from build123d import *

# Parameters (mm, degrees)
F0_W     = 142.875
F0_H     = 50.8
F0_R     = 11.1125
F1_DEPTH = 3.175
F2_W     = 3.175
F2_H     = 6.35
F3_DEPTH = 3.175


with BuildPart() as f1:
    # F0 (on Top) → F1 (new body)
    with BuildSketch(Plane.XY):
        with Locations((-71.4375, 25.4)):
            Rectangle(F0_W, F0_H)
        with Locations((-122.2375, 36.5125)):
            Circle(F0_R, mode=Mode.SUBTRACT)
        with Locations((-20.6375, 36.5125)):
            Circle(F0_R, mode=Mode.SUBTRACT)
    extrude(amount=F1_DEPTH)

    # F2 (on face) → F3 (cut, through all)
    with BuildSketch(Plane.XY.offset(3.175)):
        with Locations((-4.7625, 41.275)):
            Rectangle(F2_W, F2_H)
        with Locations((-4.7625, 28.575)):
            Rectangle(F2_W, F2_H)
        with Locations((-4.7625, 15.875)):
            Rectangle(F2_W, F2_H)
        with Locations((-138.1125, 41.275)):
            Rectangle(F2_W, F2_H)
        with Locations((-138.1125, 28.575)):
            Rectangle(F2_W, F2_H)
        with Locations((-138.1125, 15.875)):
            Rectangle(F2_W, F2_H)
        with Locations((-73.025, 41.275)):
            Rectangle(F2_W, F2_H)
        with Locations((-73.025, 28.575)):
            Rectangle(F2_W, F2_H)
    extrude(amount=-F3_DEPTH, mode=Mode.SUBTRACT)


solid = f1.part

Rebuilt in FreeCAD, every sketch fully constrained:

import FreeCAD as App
import Part
import Sketcher
Q = App.Units.Quantity


def add_polygon(sketch, points):
    """Adds a closed chain of lines whose ends are joined by coincident constraints."""
    first, n = sketch.GeometryCount, len(points)
    for a, b in zip(points, points[1:] + points[:1]):
        sketch.addGeometry(Part.LineSegment(App.Vector(*a, 0), App.Vector(*b, 0)), False)
    for i in range(n):
        sketch.addConstraint(Sketcher.Constraint("Coincident", first + i, 2, first + (i + 1) % n, 1))

doc = App.newDocument("Part")
body = doc.addObject("PartDesign::Body", "Body")

sketch1 = body.newObject("Sketcher::SketchObject", "Sketch")
sketch1.AttachmentSupport = (doc.getObject("XY_Plane"), [""])
sketch1.MapMode = "FlatFace"
add_polygon(sketch1, [(-142.875, 50.8), (-142.875, 0), (0, 0), (0, 50.8)])
sketch1.addGeometry(Part.Circle(App.Vector(-122.2375, 36.5125, 0), App.Vector(0, 0, 1), 11.1125), False)
sketch1.addGeometry(Part.Circle(App.Vector(-20.6375, 36.5125, 0), App.Vector(0, 0, 1), 11.1125), False)
sketch1.addConstraint(Sketcher.Constraint("Vertical", 0))
sketch1.addConstraint(Sketcher.Constraint("Horizontal", 1))
sketch1.addConstraint(Sketcher.Constraint("Vertical", 2))
sketch1.addConstraint(Sketcher.Constraint("Horizontal", 3))
sketch1.addConstraint(Sketcher.Constraint("Coincident", 1, 2, -1, 1))
sketch1.addConstraint(Sketcher.Constraint("Equal", 4, 5))
sketch1.addConstraint(Sketcher.Constraint("Horizontal", 4, 3, 5, 3))
sketch1.addConstraint(Sketcher.Constraint("DistanceY", 0, 2, 0, 1, Q("2 in")))
sketch1.addConstraint(Sketcher.Constraint("Diameter", 4, Q("0.875 in")))
sketch1.addConstraint(Sketcher.Constraint("DistanceX", 4, 3, 5, 3, Q("4 in")))
sketch1.addConstraint(Sketcher.Constraint("DistanceX", 1, 1, 1, 2, Q("5.625 in")))
sketch1.addConstraint(Sketcher.Constraint("DistanceX", 4, 3, -1, 1, Q("4.8125 in")))
sketch1.addConstraint(Sketcher.Constraint("DistanceY", -1, 1, 4, 3, Q("1.4375 in")))
pad1 = body.newObject("PartDesign::Pad", "Pad")
pad1.Profile = sketch1
pad1.Length = Q("0.125 in")

sketch2 = body.newObject("Sketcher::SketchObject", "Sketch001")
sketch2.AttachmentSupport = (doc.getObject("XY_Plane"), [""])
sketch2.MapMode = "FlatFace"
sketch2.AttachmentOffset = App.Placement(App.Vector(0, 0, 0.125 * 25.4), App.Rotation())
add_polygon(sketch2, [(-6.35, 44.45), (-6.35, 38.1), (-3.175, 38.1), (-3.175, 44.45)])
add_polygon(sketch2, [(-6.35, 31.75), (-6.35, 25.4), (-3.175, 25.4), (-3.175, 31.75)])
add_polygon(sketch2, [(-6.35, 19.05), (-6.35, 12.7), (-3.175, 12.7), (-3.175, 19.05)])
add_polygon(sketch2, [(-139.7, 44.45), (-139.7, 38.1), (-136.525, 38.1), (-136.525, 44.45)])
add_polygon(sketch2, [(-139.7, 31.75), (-139.7, 25.4), (-136.525, 25.4), (-136.525, 31.75)])
add_polygon(sketch2, [(-139.7, 19.05), (-139.7, 12.7), (-136.525, 12.7), (-136.525, 19.05)])
add_polygon(sketch2, [(-74.6125, 44.45), (-74.6125, 38.1), (-71.4375, 38.1), (-71.4375, 44.45)])
add_polygon(sketch2, [(-74.6125, 31.75), (-74.6125, 25.4), (-71.4375, 25.4), (-71.4375, 31.75)])
sketch2.addConstraint(Sketcher.Constraint("Vertical", 0))
sketch2.addConstraint(Sketcher.Constraint("Horizontal", 1))
sketch2.addConstraint(Sketcher.Constraint("Vertical", 2))
sketch2.addConstraint(Sketcher.Constraint("Horizontal", 3))
sketch2.addConstraint(Sketcher.Constraint("Vertical", 4))
sketch2.addConstraint(Sketcher.Constraint("Horizontal", 5))
sketch2.addConstraint(Sketcher.Constraint("Vertical", 6))
sketch2.addConstraint(Sketcher.Constraint("Horizontal", 7))
sketch2.addConstraint(Sketcher.Constraint("Vertical", 8))
sketch2.addConstraint(Sketcher.Constraint("Horizontal", 9))
sketch2.addConstraint(Sketcher.Constraint("Vertical", 10))
sketch2.addConstraint(Sketcher.Constraint("Horizontal", 11))
sketch2.addConstraint(Sketcher.Constraint("Vertical", 12))
sketch2.addConstraint(Sketcher.Constraint("Horizontal", 13))
sketch2.addConstraint(Sketcher.Constraint("Vertical", 14))
sketch2.addConstraint(Sketcher.Constraint("Horizontal", 15))
sketch2.addConstraint(Sketcher.Constraint("Vertical", 16))
sketch2.addConstraint(Sketcher.Constraint("Horizontal", 17))
sketch2.addConstraint(Sketcher.Constraint("Vertical", 18))
sketch2.addConstraint(Sketcher.Constraint("Horizontal", 19))
sketch2.addConstraint(Sketcher.Constraint("Vertical", 20))
sketch2.addConstraint(Sketcher.Constraint("Horizontal", 21))
sketch2.addConstraint(Sketcher.Constraint("Vertical", 22))
sketch2.addConstraint(Sketcher.Constraint("Horizontal", 23))
sketch2.addConstraint(Sketcher.Constraint("Vertical", 24))
sketch2.addConstraint(Sketcher.Constraint("Horizontal", 25))
sketch2.addConstraint(Sketcher.Constraint("Vertical", 26))
sketch2.addConstraint(Sketcher.Constraint("Horizontal", 27))
sketch2.addConstraint(Sketcher.Constraint("Vertical", 28))
sketch2.addConstraint(Sketcher.Constraint("Horizontal", 29))
sketch2.addConstraint(Sketcher.Constraint("Vertical", 30))
sketch2.addConstraint(Sketcher.Constraint("Horizontal", 31))
sketch2.addConstraint(Sketcher.Constraint("Horizontal", 1, 2, 12, 2))
sketch2.addConstraint(Sketcher.Constraint("Horizontal", 3, 2, 14, 2))
sketch2.addConstraint(Sketcher.Constraint("Horizontal", 5, 2, 16, 2))
sketch2.addConstraint(Sketcher.Constraint("Horizontal", 7, 2, 18, 2))
sketch2.addConstraint(Sketcher.Constraint("Horizontal", 9, 2, 20, 2))
sketch2.addConstraint(Sketcher.Constraint("Horizontal", 11, 2, 22, 2))
sketch2.addConstraint(Sketcher.Constraint("Horizontal", 13, 2, 24, 2))
sketch2.addConstraint(Sketcher.Constraint("Horizontal", 15, 2, 26, 2))
sketch2.addConstraint(Sketcher.Constraint("Horizontal", 17, 2, 28, 2))
sketch2.addConstraint(Sketcher.Constraint("Horizontal", 19, 2, 30, 2))
sketch2.addConstraint(Sketcher.Constraint("Vertical", 3, 2, 4, 2))
sketch2.addConstraint(Sketcher.Constraint("Vertical", 2, 2, 5, 2))
sketch2.addConstraint(Sketcher.Constraint("Vertical", 7, 2, 8, 2))
sketch2.addConstraint(Sketcher.Constraint("Vertical", 6, 2, 9, 2))
sketch2.addConstraint(Sketcher.Constraint("Vertical", 15, 2, 16, 2))
sketch2.addConstraint(Sketcher.Constraint("Vertical", 14, 2, 17, 2))
sketch2.addConstraint(Sketcher.Constraint("Vertical", 19, 2, 20, 2))
sketch2.addConstraint(Sketcher.Constraint("Vertical", 18, 2, 21, 2))
sketch2.addConstraint(Sketcher.Constraint("Vertical", 27, 2, 28, 2))
sketch2.addConstraint(Sketcher.Constraint("Vertical", 26, 2, 29, 2))
sketch2.addConstraint(Sketcher.Constraint("Equal", 11, 13))
sketch2.addConstraint(Sketcher.Constraint("Equal", 23, 25))
sketch2.addConstraint(Sketcher.Constraint("Equal", 2, 4))
sketch2.addConstraint(Sketcher.Constraint("Equal", 6, 8))
sketch2.addConstraint(Sketcher.Constraint("DistanceY", -1, 1, 4, 2, Q("1 in")))
sketch2.addConstraint(Sketcher.Constraint("DistanceY", 8, 2, 0, 2, Q("1 in")))
sketch2.addConstraint(Sketcher.Constraint("DistanceY", 0, 2, 0, 1, Q("0.25 in")))
sketch2.addConstraint(Sketcher.Constraint("DistanceY", -1, 1, 0, 2, Q("1.5 in")))
sketch2.addConstraint(Sketcher.Constraint("DistanceX", 12, 2, -1, 1, Q("5.5 in")))
sketch2.addConstraint(Sketcher.Constraint("DistanceX", 1, 1, 1, 2, Q("0.125 in")))
sketch2.addConstraint(Sketcher.Constraint("DistanceX", 0, 2, -1, 1, Q("0.25 in")))
sketch2.addConstraint(Sketcher.Constraint("DistanceX", 24, 2, -1, 1, Q("2.9375 in")))
pocket1 = body.newObject("PartDesign::Pocket", "Pocket")
pocket1.Profile = sketch2
pocket1.Type = "ThroughAll"

doc.recompute()
